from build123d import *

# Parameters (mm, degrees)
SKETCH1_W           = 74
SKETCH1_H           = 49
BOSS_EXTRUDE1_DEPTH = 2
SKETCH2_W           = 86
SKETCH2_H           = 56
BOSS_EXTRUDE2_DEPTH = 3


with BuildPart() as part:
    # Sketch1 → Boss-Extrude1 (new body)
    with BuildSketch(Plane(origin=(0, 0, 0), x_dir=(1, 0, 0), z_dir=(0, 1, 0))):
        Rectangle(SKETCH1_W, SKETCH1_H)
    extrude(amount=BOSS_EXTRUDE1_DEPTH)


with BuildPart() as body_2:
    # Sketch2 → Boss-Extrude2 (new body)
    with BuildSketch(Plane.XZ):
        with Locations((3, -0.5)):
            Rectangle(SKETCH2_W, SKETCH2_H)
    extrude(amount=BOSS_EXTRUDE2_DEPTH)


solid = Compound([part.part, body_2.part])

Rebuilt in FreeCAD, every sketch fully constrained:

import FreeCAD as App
import Part
import Sketcher
from FreeCAD import Vector
Q = App.Units.Quantity

doc = App.newDocument("Part")
body = doc.addObject("PartDesign::Body", "Body")

sketch1 = body.newObject("Sketcher::SketchObject", "Sketch")
sketch1.AttachmentSupport = (doc.getObject("XZ_Plane"), [""])
sketch1.MapMode = "FlatFace"
sketch1.addGeometry([
    Part.LineSegment(Vector(-37, -24, 0), Vector(-37, 24, 0)),
    Part.LineSegment(Vector(-37, 24, 0), Vector(37, 24, 0)),
    Part.LineSegment(Vector(37, 24, 0), Vector(37, -24, 0)),
    Part.LineSegment(Vector(37, -24, 0), Vector(-37, -24, 0)),
], False)
sketch1.addConstraint([
    Sketcher.Constraint("Coincident", 0, 2, 1, 1),
    Sketcher.Constraint("Coincident", 1, 2, 2, 1),
    Sketcher.Constraint("Coincident", 2, 2, 3, 1),
    Sketcher.Constraint("Coincident", 3, 2, 0, 1),
    Sketcher.Constraint("Vertical", 0),
    Sketcher.Constraint("Horizontal", 1),
    Sketcher.Constraint("Vertical", 2),
    Sketcher.Constraint("Horizontal", 3),
    Sketcher.Constraint("Symmetric", 0, 2, 2, 2, -1, 1),
    Sketcher.Constraint("DistanceX", 1, 1, 1, 2, Q("74 mm")),
    Sketcher.Constraint("DistanceY", 0, 1, 0, 2, Q("49 mm")),
])
pad1 = body.newObject("PartDesign::Pad", "Pad")
pad1.Profile = sketch1
pad1.Length = 2
pad1.Reversed = True
body2 = doc.addObject("PartDesign::Body", "Body001")

sketch2 = body2.newObject("Sketcher::SketchObject", "Sketch001")
sketch2.AttachmentSupport = (doc.getObject("XZ_Plane001"), [""])
sketch2.MapMode = "FlatFace"
sketch2.addGeometry([
    Part.LineSegment(Vector(-40, 28, 0), Vector(-40, -28, 0)),
    Part.LineSegment(Vector(-40, -28, 0), Vector(46, -28, 0)),
    Part.LineSegment(Vector(46, -28, 0), Vector(46, 28, 0)),
    Part.LineSegment(Vector(46, 28, 0), Vector(-40, 28, 0)),
], False)
sketch2.addConstraint([
    Sketcher.Constraint("Coincident", 0, 2, 1, 1),
    Sketcher.Constraint("Coincident", 1, 2, 2, 1),
    Sketcher.Constraint("Coincident", 2, 2, 3, 1),
    Sketcher.Constraint("Coincident", 3, 2, 0, 1),
    Sketcher.Constraint("Vertical", 0),
    Sketcher.Constraint("Horizontal", 1),
    Sketcher.Constraint("Vertical", 2),
    Sketcher.Constraint("Horizontal", 3),
    Sketcher.Constraint("DistanceX", 1, 1, 1, 2, Q("86 mm")),
    Sketcher.Constraint("DistanceY", 0, 2, 0, 1, Q("56 mm")),
    Sketcher.Constraint("DistanceX", 0, 2, -1, 1, Q("40 mm")),
    Sketcher.Constraint("DistanceY", 0, 2, -1, 1, Q("28.5 mm")),
])
pad2 = body2.newObject("PartDesign::Pad", "Pad001")
pad2.Profile = sketch2
pad2.Length = 3

doc.recompute()
